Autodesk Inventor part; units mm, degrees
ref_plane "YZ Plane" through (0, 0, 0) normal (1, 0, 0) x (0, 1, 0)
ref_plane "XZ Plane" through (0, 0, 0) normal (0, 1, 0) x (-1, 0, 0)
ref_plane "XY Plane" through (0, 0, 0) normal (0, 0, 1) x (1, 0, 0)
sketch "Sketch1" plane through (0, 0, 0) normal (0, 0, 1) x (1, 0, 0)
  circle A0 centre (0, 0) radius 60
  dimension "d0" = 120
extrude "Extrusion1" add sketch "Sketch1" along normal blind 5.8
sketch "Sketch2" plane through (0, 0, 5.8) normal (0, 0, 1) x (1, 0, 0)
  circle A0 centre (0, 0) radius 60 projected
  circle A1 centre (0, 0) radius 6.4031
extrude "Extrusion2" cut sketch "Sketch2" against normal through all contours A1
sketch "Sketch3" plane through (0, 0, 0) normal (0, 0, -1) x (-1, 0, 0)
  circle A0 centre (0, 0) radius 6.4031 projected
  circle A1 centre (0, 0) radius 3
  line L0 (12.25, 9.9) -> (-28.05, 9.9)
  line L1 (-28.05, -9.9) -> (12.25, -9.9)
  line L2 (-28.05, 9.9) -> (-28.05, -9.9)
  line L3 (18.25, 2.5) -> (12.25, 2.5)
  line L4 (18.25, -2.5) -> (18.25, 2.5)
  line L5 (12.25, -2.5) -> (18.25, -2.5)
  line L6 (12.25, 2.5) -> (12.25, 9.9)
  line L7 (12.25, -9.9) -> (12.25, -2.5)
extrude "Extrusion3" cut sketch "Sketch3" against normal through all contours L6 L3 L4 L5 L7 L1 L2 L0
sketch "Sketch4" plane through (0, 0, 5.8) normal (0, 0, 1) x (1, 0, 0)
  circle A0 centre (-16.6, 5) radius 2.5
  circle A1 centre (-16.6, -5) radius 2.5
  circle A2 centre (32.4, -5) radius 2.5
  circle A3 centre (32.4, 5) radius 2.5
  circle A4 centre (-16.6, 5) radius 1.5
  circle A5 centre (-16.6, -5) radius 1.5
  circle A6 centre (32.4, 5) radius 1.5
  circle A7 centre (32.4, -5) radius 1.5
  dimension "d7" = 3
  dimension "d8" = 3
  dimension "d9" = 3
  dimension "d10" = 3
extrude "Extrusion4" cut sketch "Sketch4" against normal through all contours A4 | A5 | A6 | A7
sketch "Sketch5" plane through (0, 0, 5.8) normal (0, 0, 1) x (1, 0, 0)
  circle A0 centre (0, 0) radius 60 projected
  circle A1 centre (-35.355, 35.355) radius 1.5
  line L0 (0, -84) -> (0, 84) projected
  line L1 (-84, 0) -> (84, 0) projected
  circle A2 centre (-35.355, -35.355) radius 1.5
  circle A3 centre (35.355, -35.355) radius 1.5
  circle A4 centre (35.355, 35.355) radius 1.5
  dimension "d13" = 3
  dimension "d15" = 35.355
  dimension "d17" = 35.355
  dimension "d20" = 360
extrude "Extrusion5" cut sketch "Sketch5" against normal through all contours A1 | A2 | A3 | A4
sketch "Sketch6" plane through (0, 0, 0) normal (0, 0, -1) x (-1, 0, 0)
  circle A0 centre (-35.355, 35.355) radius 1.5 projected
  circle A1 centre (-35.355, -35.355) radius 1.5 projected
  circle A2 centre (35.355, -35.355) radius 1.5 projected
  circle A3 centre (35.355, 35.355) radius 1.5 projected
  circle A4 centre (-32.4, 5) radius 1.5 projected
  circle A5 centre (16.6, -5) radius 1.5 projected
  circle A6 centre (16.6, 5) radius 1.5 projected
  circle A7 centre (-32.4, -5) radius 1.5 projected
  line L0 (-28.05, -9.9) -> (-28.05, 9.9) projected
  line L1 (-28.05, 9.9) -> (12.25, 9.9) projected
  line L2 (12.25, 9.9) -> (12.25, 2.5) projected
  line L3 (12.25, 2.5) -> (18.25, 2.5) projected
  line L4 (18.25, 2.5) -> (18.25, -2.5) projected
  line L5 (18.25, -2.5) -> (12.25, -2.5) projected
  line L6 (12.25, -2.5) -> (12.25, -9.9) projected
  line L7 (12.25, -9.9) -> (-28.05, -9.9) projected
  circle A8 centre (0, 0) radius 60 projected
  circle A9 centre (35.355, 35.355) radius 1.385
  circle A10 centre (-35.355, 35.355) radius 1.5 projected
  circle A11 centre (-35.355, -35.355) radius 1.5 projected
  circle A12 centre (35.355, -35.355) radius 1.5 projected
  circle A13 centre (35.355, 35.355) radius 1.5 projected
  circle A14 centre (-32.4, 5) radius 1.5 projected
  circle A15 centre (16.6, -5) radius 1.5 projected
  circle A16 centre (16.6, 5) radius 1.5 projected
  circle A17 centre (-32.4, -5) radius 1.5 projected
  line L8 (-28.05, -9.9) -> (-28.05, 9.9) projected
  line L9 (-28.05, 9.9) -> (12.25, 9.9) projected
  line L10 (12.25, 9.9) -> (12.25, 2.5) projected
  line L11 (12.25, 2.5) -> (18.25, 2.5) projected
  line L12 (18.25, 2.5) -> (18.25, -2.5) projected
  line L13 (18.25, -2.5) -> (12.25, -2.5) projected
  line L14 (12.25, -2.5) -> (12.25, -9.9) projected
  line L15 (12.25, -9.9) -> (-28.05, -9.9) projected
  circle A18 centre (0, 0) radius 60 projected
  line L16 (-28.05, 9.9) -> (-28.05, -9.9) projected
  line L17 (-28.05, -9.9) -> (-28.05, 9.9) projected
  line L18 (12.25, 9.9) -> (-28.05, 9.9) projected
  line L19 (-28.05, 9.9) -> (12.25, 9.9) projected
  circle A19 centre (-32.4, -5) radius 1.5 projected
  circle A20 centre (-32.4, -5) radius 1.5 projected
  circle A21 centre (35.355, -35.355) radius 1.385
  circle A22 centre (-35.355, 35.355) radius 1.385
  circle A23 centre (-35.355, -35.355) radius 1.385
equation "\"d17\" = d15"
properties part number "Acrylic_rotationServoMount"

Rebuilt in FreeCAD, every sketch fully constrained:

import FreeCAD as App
import Part
import Sketcher
Q = App.Units.Quantity

doc = App.newDocument("Part")
body = doc.addObject("PartDesign::Body", "Body")

sketch1 = body.newObject("Sketcher::SketchObject", "Sketch")
sketch1.AttachmentSupport = (doc.getObject("XY_Plane"), [""])
sketch1.MapMode = "FlatFace"
sketch1.addGeometry(Part.Circle(App.Vector(0, 0, 0), App.Vector(0, 0, 1), 60), False)
sketch1.addConstraint(Sketcher.Constraint("Coincident", 0, 3, -1, 1))
sketch1.addConstraint(Sketcher.Constraint("Diameter", 0, Q("120 mm")))
pad1 = body.newObject("PartDesign::Pad", "Pad")
pad1.Profile = sketch1
pad1.Length = 5.8

sketch2 = body.newObject("Sketcher::SketchObject", "Sketch001")
sketch2.AttachmentSupport = (doc.getObject("XY_Plane"), [""])
sketch2.MapMode = "FlatFace"
sketch2.AttachmentOffset = App.Placement(App.Vector(0, 0, 5.8), App.Rotation())
sketch2.addGeometry(Part.Circle(App.Vector(0, 0, 0), App.Vector(0, 0, 1), 6.4031), False)
sketch2.addConstraint(Sketcher.Constraint("Coincident", 0, 3, -1, 1))
sketch2.addConstraint(Sketcher.Constraint("Diameter", 0, Q("12.8062 mm")))
pocket1 = body.newObject("PartDesign::Pocket", "Pocket")
pocket1.Profile = sketch2
pocket1.Type = "ThroughAll"

sketch3 = body.newObject("Sketcher::SketchObject", "Sketch002")
sketch3.AttachmentSupport = (doc.getObject("XY_Plane"), [""])
sketch3.MapMode = "FlatFace"
sketch3.addGeometry(Part.LineSegment(App.Vector(-12.25, 2.5, 0), App.Vector(-12.25, 9.9, 0)), False)
sketch3.addGeometry(Part.LineSegment(App.Vector(-12.25, 9.9, 0), App.Vector(28.05, 9.9, 0)), False)
sketch3.addGeometry(Part.LineSegment(App.Vector(28.05, 9.9, 0), App.Vector(28.05, -9.9, 0)), False)
sketch3.addGeometry(Part.LineSegment(App.Vector(28.05, -9.9, 0), App.Vector(-12.25, -9.9, 0)), False)
sketch3.addGeometry(Part.LineSegment(App.Vector(-12.25, -9.9, 0), App.Vector(-12.25, -2.5, 0)), False)
sketch3.addGeometry(Part.LineSegment(App.Vector(-12.25, -2.5, 0), App.Vector(-18.25, -2.5, 0)), False)
sketch3.addGeometry(Part.LineSegment(App.Vector(-18.25, -2.5, 0), App.Vector(-18.25, 2.5, 0)), False)
sketch3.addGeometry(Part.LineSegment(App.Vector(-18.25, 2.5, 0), App.Vector(-12.25, 2.5, 0)), False)
sketch3.addGeometry(Part.Circle(App.Vector(0, 0, 0), App.Vector(0, 0, 1), 6.4031), False)
sketch3.addConstraint(Sketcher.Constraint("Coincident", 0, 2, 1, 1))
sketch3.addConstraint(Sketcher.Constraint("Coincident", 1, 2, 2, 1))
sketch3.addConstraint(Sketcher.Constraint("Coincident", 2, 2, 3, 1))
sketch3.addConstraint(Sketcher.Constraint("Coincident", 3, 2, 4, 1))
sketch3.addConstraint(Sketcher.Constraint("Coincident", 4, 2, 5, 1))
sketch3.addConstraint(Sketcher.Constraint("Coincident", 5, 2, 6, 1))
sketch3.addConstraint(Sketcher.Constraint("Coincident", 6, 2, 7, 1))
sketch3.addConstraint(Sketcher.Constraint("Coincident", 7, 2, 0, 1))
sketch3.addConstraint(Sketcher.Constraint("Vertical", 0))
sketch3.addConstraint(Sketcher.Constraint("Horizontal", 1))
sketch3.addConstraint(Sketcher.Constraint("Vertical", 2))
sketch3.addConstraint(Sketcher.Constraint("Horizontal", 3))
sketch3.addConstraint(Sketcher.Constraint("Vertical", 4))
sketch3.addConstraint(Sketcher.Constraint("Horizontal", 5))
sketch3.addConstraint(Sketcher.Constraint("Vertical", 6))
sketch3.addConstraint(Sketcher.Constraint("Horizontal", 7))
sketch3.addConstraint(Sketcher.Constraint("Coincident", 8, 3, -1, 1))
sketch3.addConstraint(Sketcher.Constraint("Symmetric", 0, 2, 3, 2, -1))
sketch3.addConstraint(Sketcher.Constraint("Equal", 0, 4))
sketch3.addConstraint(Sketcher.Constraint("DistanceX", 5, 2, 5, 1, Q("6 mm")))
sketch3.addConstraint(Sketcher.Constraint("DistanceY", 6, 1, 6, 2, Q("5 mm")))
sketch3.addConstraint(Sketcher.Constraint("DistanceX", 1, 1, 1, 2, Q("40.3 mm")))
sketch3.addConstraint(Sketcher.Constraint("DistanceY", 0, 1, 0, 2, Q("7.4 mm")))
sketch3.addConstraint(Sketcher.Constraint("Diameter", 8, Q("12.8062 mm")))
sketch3.addConstraint(Sketcher.Constraint("DistanceX", 0, 2, -1, 1, Q("12.25 mm")))
pocket2 = body.newObject("PartDesign::Pocket", "Pocket001")
pocket2.Profile = sketch3
pocket2.Type = "ThroughAll"
pocket2.Reversed = True

sketch4 = body.newObject("Sketcher::SketchObject", "Sketch003")
sketch4.AttachmentSupport = (doc.getObject("XY_Plane"), [""])
sketch4.MapMode = "FlatFace"
sketch4.AttachmentOffset = App.Placement(App.Vector(0, 0, 5.8), App.Rotation())
sketch4.addGeometry(Part.Circle(App.Vector(-16.6, 5, 0), App.Vector(0, 0, 1), 1.5), False)
sketch4.addGeometry(Part.Circle(App.Vector(-16.6, -5, 0), App.Vector(0, 0, 1), 1.5), False)
sketch4.addGeometry(Part.Circle(App.Vector(32.4, 5, 0), App.Vector(0, 0, 1), 1.5), False)
sketch4.addGeometry(Part.Circle(App.Vector(32.4, -5, 0), App.Vector(0, 0, 1), 1.5), False)
sketch4.addConstraint(Sketcher.Constraint("Equal", 0, 1))
sketch4.addConstraint(Sketcher.Constraint("Equal", 1, 2))
sketch4.addConstraint(Sketcher.Constraint("Equal", 2, 3))
sketch4.addConstraint(Sketcher.Constraint("Symmetric", 0, 3, 1, 3, -1))
sketch4.addConstraint(Sketcher.Constraint("Symmetric", 2, 3, 3, 3, -1))
sketch4.addConstraint(Sketcher.Constraint("Horizontal", 0, 3, 2, 3))
sketch4.addConstraint(Sketcher.Constraint("Diameter", 0, Q("3 mm")))
sketch4.addConstraint(Sketcher.Constraint("DistanceY", -1, 1, 0, 3, Q("5 mm")))
sketch4.addConstraint(Sketcher.Constraint("DistanceX", 0, 3, 2, 3, Q("49 mm")))
sketch4.addConstraint(Sketcher.Constraint("DistanceX", 0, 3, -1, 1, Q("16.6 mm")))
pocket3 = body.newObject("PartDesign::Pocket", "Pocket002")
pocket3.Profile = sketch4
pocket3.Type = "ThroughAll"

sketch5 = body.newObject("Sketcher::SketchObject", "Sketch004")
sketch5.AttachmentSupport = (doc.getObject("XY_Plane"), [""])
sketch5.MapMode = "FlatFace"
sketch5.AttachmentOffset = App.Placement(App.Vector(0, 0, 5.8), App.Rotation())
sketch5.addGeometry(Part.Circle(App.Vector(-35.355, 35.355, 0), App.Vector(0, 0, 1), 1.5), False)
sketch5.addGeometry(Part.Circle(App.Vector(-35.355, -35.355, 0), App.Vector(0, 0, 1), 1.5), False)
sketch5.addGeometry(Part.Circle(App.Vector(35.355, -35.355, 0), App.Vector(0, 0, 1), 1.5), False)
sketch5.addGeometry(Part.Circle(App.Vector(35.355, 35.355, 0), App.Vector(0, 0, 1), 1.5), False)
sketch5.addConstraint(Sketcher.Constraint("Equal", 0, 1))
sketch5.addConstraint(Sketcher.Constraint("Equal", 1, 2))
sketch5.addConstraint(Sketcher.Constraint("Equal", 2, 3))
sketch5.addConstraint(Sketcher.Constraint("Symmetric", 0, 3, 2, 3, -1, 1))
sketch5.addConstraint(Sketcher.Constraint("Symmetric", 1, 3, 3, 3, -1, 1))
sketch5.addConstraint(Sketcher.Constraint("Symmetric", 1, 3, 2, 3, -2))
sketch5.addConstraint(Sketcher.Constraint("Diameter", 0, Q("3 mm")))
sketch5.addConstraint(Sketcher.Constraint("DistanceX", 0, 3, -1, 1, Q("35.355 mm")))
sketch5.addConstraint(Sketcher.Constraint("DistanceY", -1, 1, 0, 3, Q("35.355 mm")))
pocket4 = body.newObject("PartDesign::Pocket", "Pocket003")
pocket4.Profile = sketch5
pocket4.Type = "ThroughAll"

doc.recompute()
